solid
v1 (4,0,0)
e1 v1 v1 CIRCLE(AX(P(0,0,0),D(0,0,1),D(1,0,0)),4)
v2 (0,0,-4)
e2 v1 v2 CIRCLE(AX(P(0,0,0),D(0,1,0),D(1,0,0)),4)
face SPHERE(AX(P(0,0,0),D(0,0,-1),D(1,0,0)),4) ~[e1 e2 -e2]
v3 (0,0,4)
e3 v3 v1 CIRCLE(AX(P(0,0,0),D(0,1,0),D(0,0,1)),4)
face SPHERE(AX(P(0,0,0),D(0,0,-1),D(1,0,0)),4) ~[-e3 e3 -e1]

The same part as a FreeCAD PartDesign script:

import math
import FreeCAD as App
import Part
import Sketcher
from FreeCAD import Vector

doc = App.newDocument("Part")
body = doc.addObject("PartDesign::Body", "Body")

sketch1 = body.newObject("Sketcher::SketchObject", "Sketch")
sketch1.AttachmentSupport = (doc.getObject("XZ_Plane"), [""])
sketch1.MapMode = "FlatFace"
sketch1.addGeometry(Part.ArcOfCircle(Part.Circle(Vector(0, 0, 0), Vector(0, 0, 1), 4), math.radians(0), math.radians(90)), False)
sketch1.addGeometry(Part.ArcOfCircle(Part.Circle(Vector(0, 0, 0), Vector(0, 0, 1), 4), math.radians(-90), math.radians(0)), False)
sketch1.addGeometry(Part.LineSegment(Vector(0, -4, 0), Vector(0, 4, 0)), False)
sketch1.addConstraint(Sketcher.Constraint("Tangent", 0, 1, 1, 2))
sketch1.addConstraint(Sketcher.Constraint("Coincident", 1, 1, 2, 1))
sketch1.addConstraint(Sketcher.Constraint("Coincident", 2, 2, 0, 2))
sketch1.addConstraint(Sketcher.Constraint("Vertical", 2))
sketch1.addConstraint(Sketcher.Constraint("Coincident", 0, 3, -1, 1))
sketch1.addConstraint(Sketcher.Constraint("Equal", 0, 1))
sketch1.addConstraint(Sketcher.Constraint("PointOnObject", 0, 1, -1))
sketch1.addConstraint(Sketcher.Constraint("PointOnObject", 1, 1, -2))
sketch1.addConstraint(Sketcher.Constraint("Radius", 0, 4.0))
revolution = body.newObject("PartDesign::Revolution", "Revolution")
revolution.Profile = sketch1
revolution.ReferenceAxis = (sketch1, ["V_Axis"])
revolution.Angle = 360

doc.recompute()
